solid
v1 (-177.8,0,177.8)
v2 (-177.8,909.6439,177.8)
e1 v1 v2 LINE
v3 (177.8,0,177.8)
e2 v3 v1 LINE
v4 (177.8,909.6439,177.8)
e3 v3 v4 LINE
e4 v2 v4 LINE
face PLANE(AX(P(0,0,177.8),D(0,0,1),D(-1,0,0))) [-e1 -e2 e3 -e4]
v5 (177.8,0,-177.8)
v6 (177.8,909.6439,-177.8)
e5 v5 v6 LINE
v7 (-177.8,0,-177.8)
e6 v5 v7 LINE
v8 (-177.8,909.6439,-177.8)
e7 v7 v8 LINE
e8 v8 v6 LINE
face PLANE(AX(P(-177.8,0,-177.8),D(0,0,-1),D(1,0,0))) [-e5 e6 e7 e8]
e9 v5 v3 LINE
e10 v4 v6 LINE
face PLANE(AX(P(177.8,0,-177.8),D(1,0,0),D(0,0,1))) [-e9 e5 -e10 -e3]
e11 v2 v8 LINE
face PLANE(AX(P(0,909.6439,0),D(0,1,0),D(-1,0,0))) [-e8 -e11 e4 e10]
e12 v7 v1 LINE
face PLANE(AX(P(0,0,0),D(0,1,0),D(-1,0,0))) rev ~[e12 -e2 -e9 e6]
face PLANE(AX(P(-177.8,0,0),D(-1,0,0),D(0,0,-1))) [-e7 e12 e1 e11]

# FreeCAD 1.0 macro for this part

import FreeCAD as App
import Part
import Sketcher

V = App.Vector
Q = App.Units.Quantity


def add_polygon(sketch, points):
    """Adds a closed chain of lines whose ends are joined by coincident constraints."""
    first, n = sketch.GeometryCount, len(points)
    for a, b in zip(points, points[1:] + points[:1]):
        sketch.addGeometry(Part.LineSegment(App.Vector(*a, 0), App.Vector(*b, 0)), False)
    for i in range(n):
        sketch.addConstraint(Sketcher.Constraint("Coincident", first + i, 2, first + (i + 1) % n, 1))

doc = App.newDocument("Part")
body = doc.addObject("PartDesign::Body", "Body")

# Sketch on XZ plane
sketch1 = doc.addObject("Sketcher::SketchObject", "Sketch")
body.addObject(sketch1)
sketch1.AttachmentSupport = (doc.XZ_Plane, [""])
sketch1.MapMode = "FlatFace"
add_polygon(sketch1, [(-178, -178), (-178, 178), (178, 178), (178, -178)])  # lines 0-3
sketch1.addConstraint(Sketcher.Constraint("Vertical", 0))
sketch1.addConstraint(Sketcher.Constraint("Horizontal", 1))
sketch1.addConstraint(Sketcher.Constraint("Vertical", 2))
sketch1.addConstraint(Sketcher.Constraint("Horizontal", 3))
sketch1.addConstraint(Sketcher.Constraint("Symmetric", 0, 2, 2, 2, -1, 1))
sketch1.addConstraint(Sketcher.Constraint("Equal", 3, 0))
sketch1.addConstraint(Sketcher.Constraint("DistanceX", 1, 1, 1, 2, Q("14 in")))
pad1 = doc.addObject("PartDesign::Pad", "Pad")
body.addObject(pad1)
pad1.Profile = sketch1
pad1.Length = 909.6439
pad1.Reversed = True

doc.recompute()
